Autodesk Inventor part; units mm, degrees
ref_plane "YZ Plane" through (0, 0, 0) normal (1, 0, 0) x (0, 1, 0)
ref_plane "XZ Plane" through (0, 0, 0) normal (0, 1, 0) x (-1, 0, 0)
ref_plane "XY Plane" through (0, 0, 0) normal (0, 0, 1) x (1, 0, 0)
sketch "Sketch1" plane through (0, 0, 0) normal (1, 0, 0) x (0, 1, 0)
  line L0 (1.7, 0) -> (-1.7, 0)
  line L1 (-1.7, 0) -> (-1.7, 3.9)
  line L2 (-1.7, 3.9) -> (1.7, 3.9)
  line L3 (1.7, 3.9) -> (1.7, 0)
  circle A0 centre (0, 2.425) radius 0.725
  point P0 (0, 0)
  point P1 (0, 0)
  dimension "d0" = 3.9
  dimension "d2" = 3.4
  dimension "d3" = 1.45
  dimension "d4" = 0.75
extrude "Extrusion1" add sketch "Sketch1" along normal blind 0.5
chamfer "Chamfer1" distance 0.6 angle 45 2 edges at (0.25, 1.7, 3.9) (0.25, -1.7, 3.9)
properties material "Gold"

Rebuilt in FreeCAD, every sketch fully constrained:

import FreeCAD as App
import Part
import Sketcher

V = App.Vector
Q = App.Units.Quantity


def edges_at(feature, points):
    """Names of the edges that pass closest to the given points."""
    edges = feature.Shape.Edges
    near = lambda p: min(range(len(edges)), key=lambda i: edges[i].distToShape(Part.Vertex(*p))[0])
    return sorted({f"Edge{near(p) + 1}" for p in points})

doc = App.newDocument("Part")
body = doc.addObject("PartDesign::Body", "Body")

# Sketch on YZ plane
sketch1 = doc.addObject("Sketcher::SketchObject", "Sketch")
body.addObject(sketch1)
sketch1.AttachmentSupport = (doc.YZ_Plane, [""])
sketch1.MapMode = "FlatFace"
sketch1.addGeometry([
    Part.LineSegment(V(-1.7, 0, 0), V(1.7, 0, 0)),  # 0
    Part.LineSegment(V(1.7, 0, 0), V(1.7, 3.9, 0)),  # 1
    Part.LineSegment(V(1.7, 3.9, 0), V(-1.7, 3.9, 0)),  # 2
    Part.LineSegment(V(-1.7, 3.9, 0), V(-1.7, 0, 0)),  # 3
    Part.Circle(V(0, 2.4, 0), V(0, 0, 1), 0.7),  # 4
], False)
sketch1.addConstraint([
    Sketcher.Constraint("Coincident", 0, 2, 1, 1),
    Sketcher.Constraint("Coincident", 1, 2, 2, 1),
    Sketcher.Constraint("Coincident", 2, 2, 3, 1),
    Sketcher.Constraint("Coincident", 3, 2, 0, 1),
    Sketcher.Constraint("Horizontal", 0),
    Sketcher.Constraint("Vertical", 1),
    Sketcher.Constraint("Horizontal", 2),
    Sketcher.Constraint("Vertical", 3),
    Sketcher.Constraint("Symmetric", 0, 2, 3, 2, -1, 1),
    Sketcher.Constraint("PointOnObject", 4, 3, -2),
    Sketcher.Constraint("Diameter", 4, Q("1.45 mm")),
    Sketcher.Constraint("DistanceX", 0, 1, 0, 2, Q("3.4 mm")),
    Sketcher.Constraint("DistanceY", 1, 1, 1, 2, Q("3.9 mm")),
    Sketcher.Constraint("DistanceY", -1, 1, 4, 3, Q("2.425 mm")),
])
pad1 = doc.addObject("PartDesign::Pad", "Pad")
body.addObject(pad1)
pad1.Profile = sketch1
pad1.Length = 0.5
doc.recompute()

chamfer = doc.addObject("PartDesign::Chamfer", "Chamfer")
body.addObject(chamfer)
chamfer.Base = (pad1, edges_at(pad1, [(0.25, 1.7, 3.9), (0.25, -1.7, 3.9)]))
chamfer.Size = 0.6

doc.recompute()
